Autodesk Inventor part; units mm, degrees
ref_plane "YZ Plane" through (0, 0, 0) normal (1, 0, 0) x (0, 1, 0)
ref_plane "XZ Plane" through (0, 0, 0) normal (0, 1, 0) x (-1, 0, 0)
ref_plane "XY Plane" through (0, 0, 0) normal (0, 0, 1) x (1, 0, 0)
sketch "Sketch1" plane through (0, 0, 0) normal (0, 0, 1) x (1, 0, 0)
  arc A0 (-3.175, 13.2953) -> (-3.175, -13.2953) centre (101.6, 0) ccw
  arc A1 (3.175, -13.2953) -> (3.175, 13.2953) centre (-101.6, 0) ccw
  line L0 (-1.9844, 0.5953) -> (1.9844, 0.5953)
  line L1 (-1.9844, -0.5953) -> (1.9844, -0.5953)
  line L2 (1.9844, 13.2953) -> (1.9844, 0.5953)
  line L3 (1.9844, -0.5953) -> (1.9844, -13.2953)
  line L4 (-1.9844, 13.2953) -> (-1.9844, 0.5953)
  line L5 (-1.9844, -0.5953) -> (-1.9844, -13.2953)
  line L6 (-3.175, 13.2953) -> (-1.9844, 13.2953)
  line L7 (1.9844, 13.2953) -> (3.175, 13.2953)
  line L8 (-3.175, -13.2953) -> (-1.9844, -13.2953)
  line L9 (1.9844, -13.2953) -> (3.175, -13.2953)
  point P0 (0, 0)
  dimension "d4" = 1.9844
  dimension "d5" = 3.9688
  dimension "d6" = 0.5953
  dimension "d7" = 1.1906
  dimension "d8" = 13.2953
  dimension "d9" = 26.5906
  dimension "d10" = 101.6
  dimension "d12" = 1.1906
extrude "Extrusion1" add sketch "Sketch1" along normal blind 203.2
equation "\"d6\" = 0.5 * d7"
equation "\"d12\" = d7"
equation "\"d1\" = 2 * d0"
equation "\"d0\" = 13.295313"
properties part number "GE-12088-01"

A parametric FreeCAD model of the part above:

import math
import FreeCAD as App
import Part
import Sketcher
from FreeCAD import Vector
Q = App.Units.Quantity

doc = App.newDocument("Part")
params = doc.addObject("Spreadsheet::Sheet", "Params")
for row, (alias, value) in enumerate([
    ("sketch1_width", "0.046874 in"),
    ("sketch1_width2", "0.156252 in"),
    ("sketch1_height", "0.5 in"),
    ("pad1_length", "8 in"),
], start=1):
    params.set(f"A{row}", alias)
    params.set(f"B{row}", "=" + value)
    params.setAlias(f"B{row}", alias)

body = doc.addObject("PartDesign::Body", "Body")

# Sketch on XY plane
sketch1 = body.newObject("Sketcher::SketchObject", "Sketch")
sketch1.AttachmentSupport = (doc.getObject("XY_Plane"), [""])
sketch1.MapMode = "FlatFace"
sketch1.addGeometry([
    Part.LineSegment(Vector(-2, 13.3, 0), Vector(-3.2, 13.3, 0)),  # 0
    Part.ArcOfCircle(Part.Circle(Vector(101.6, 0, 0), Vector(0, 0, 1), 105.6), math.radians(172.77), math.radians(187.23)),  # 1
    Part.LineSegment(Vector(-3.2, -13.3, 0), Vector(-2, -13.3, 0)),  # 2
    Part.LineSegment(Vector(-2, -13.3, 0), Vector(-2, -0.6, 0)),  # 3
    Part.LineSegment(Vector(-2, -0.6, 0), Vector(2, -0.6, 0)),  # 4
    Part.LineSegment(Vector(2, -0.6, 0), Vector(2, -13.3, 0)),  # 5
    Part.LineSegment(Vector(2, -13.3, 0), Vector(3.2, -13.3, 0)),  # 6
    Part.ArcOfCircle(Part.Circle(Vector(-101.6, 0, 0), Vector(0, 0, 1), 105.6), math.radians(-7.23), math.radians(7.23)),  # 7
    Part.LineSegment(Vector(3.2, 13.3, 0), Vector(2, 13.3, 0)),  # 8
    Part.LineSegment(Vector(2, 13.3, 0), Vector(2, 0.6, 0)),  # 9
    Part.LineSegment(Vector(2, 0.6, 0), Vector(-2, 0.6, 0)),  # 10
    Part.LineSegment(Vector(-2, 0.6, 0), Vector(-2, 13.3, 0)),  # 11
], False)
sketch1.addConstraint([
    Sketcher.Constraint("Coincident", 0, 2, 1, 1),
    Sketcher.Constraint("Coincident", 1, 2, 2, 1),
    Sketcher.Constraint("Coincident", 2, 2, 3, 1),
    Sketcher.Constraint("Coincident", 3, 2, 4, 1),
    Sketcher.Constraint("Coincident", 4, 2, 5, 1),
    Sketcher.Constraint("Coincident", 5, 2, 6, 1),
    Sketcher.Constraint("Coincident", 6, 2, 7, 1),
    Sketcher.Constraint("Coincident", 7, 2, 8, 1),
    Sketcher.Constraint("Coincident", 8, 2, 9, 1),
    Sketcher.Constraint("Coincident", 9, 2, 10, 1),
    Sketcher.Constraint("Coincident", 10, 2, 11, 1),
    Sketcher.Constraint("Coincident", 11, 2, 0, 1),
    Sketcher.Constraint("Horizontal", 0),
    Sketcher.Constraint("Horizontal", 2),
    Sketcher.Constraint("Vertical", 3),
    Sketcher.Constraint("Horizontal", 4),
    Sketcher.Constraint("Vertical", 5),
    Sketcher.Constraint("Horizontal", 6),
    Sketcher.Constraint("Horizontal", 8),
    Sketcher.Constraint("Vertical", 9),
    Sketcher.Constraint("Horizontal", 10),
    Sketcher.Constraint("Vertical", 11),
    Sketcher.Constraint("Equal", 1, 7),
    Sketcher.Constraint("Symmetric", 1, 3, 7, 3, -1, 1),
    Sketcher.Constraint("Symmetric", 2, 2, 8, 2, -1, 1),
    Sketcher.Constraint("Symmetric", 4, 2, 10, 2, -1, 1),
    Sketcher.Constraint("Symmetric", 2, 2, 5, 2, -2),
    Sketcher.Constraint("Symmetric", 0, 2, 7, 2, -2),
    Sketcher.Constraint("DistanceX", -1, 1, 1, 3, Q("4 in")),
    Sketcher.Constraint("DistanceX", 0, 2, 0, 1, Q("0.046874 in")),
    Sketcher.Constraint("DistanceX", 4, 1, 4, 2, Q("0.156252 in")),
    Sketcher.Constraint("DistanceY", 3, 1, 3, 2, Q("0.5 in")),
    Sketcher.Constraint("DistanceY", 1, 2, 0, 2, Q("1.046874 in")),
])
sketch1.setExpression("Constraints[29]", "Params.sketch1_width")
sketch1.setExpression("Constraints[30]", "Params.sketch1_width2")
sketch1.setExpression("Constraints[31]", "Params.sketch1_height")
pad1 = body.newObject("PartDesign::Pad", "Pad")
pad1.Profile = sketch1
pad1.setExpression("Length", "Params.pad1_length")

doc.recompute()
